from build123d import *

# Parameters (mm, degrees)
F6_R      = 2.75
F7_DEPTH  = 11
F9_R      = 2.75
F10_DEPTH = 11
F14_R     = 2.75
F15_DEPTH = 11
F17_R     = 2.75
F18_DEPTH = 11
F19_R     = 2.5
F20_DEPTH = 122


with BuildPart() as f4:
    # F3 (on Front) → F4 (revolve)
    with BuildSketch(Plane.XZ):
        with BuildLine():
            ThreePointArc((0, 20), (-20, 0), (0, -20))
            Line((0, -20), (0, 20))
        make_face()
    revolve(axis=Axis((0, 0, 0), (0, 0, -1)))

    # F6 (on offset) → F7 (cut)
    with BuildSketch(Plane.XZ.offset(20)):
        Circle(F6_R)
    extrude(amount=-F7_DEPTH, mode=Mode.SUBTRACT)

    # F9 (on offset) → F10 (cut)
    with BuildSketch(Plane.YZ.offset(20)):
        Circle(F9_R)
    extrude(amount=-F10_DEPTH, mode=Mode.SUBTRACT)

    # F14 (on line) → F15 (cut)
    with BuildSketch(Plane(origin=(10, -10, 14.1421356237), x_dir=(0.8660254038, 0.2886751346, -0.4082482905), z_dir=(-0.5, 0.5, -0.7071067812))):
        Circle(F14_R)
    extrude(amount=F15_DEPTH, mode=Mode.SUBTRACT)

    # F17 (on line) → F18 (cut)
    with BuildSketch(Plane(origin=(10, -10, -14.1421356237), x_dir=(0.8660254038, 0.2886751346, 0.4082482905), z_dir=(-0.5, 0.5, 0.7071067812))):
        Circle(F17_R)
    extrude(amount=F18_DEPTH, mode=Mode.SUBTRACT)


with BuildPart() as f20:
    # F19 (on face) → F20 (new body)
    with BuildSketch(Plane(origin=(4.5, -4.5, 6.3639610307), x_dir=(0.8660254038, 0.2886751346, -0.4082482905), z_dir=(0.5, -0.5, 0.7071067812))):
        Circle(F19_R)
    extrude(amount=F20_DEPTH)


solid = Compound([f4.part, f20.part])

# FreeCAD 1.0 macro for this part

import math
import FreeCAD as App
import Part
import Sketcher
from FreeCAD import Vector

doc = App.newDocument("Part")
body = doc.addObject("PartDesign::Body", "Body")

# Sketch on XZ plane
sketch1 = doc.addObject("Sketcher::SketchObject", "Sketch")
body.addObject(sketch1)
sketch1.AttachmentSupport = (doc.XZ_Plane, [""])
sketch1.MapMode = "FlatFace"
sketch1.addGeometry([
    Part.ArcOfCircle(Part.Circle(Vector(0, 0, 0), Vector(0, 0, 1), 20), math.radians(90), math.radians(270)),
    Part.LineSegment(Vector(0, -20, 0), Vector(0, 20, 0)),
], False)
sketch1.addConstraint([
    Sketcher.Constraint("Coincident", 0, 1, 1, 2),
    Sketcher.Constraint("Coincident", 1, 1, 0, 2),
    Sketcher.Constraint("Vertical", 1),
    Sketcher.Constraint("Coincident", 0, 3, -1, 1),
    Sketcher.Constraint("PointOnObject", 0, 1, -2),
    Sketcher.Constraint("Radius", 0, 20.0),
])
revolution = doc.addObject("PartDesign::Revolution", "Revolution")
body.addObject(revolution)
revolution.Profile = sketch1
revolution.ReferenceAxis = (sketch1, ["V_Axis"])
revolution.Angle = 360

# Sketch on XZ plane
sketch2 = doc.addObject("Sketcher::SketchObject", "Sketch001")
body.addObject(sketch2)
sketch2.AttachmentSupport = (doc.XZ_Plane, [""])
sketch2.MapMode = "FlatFace"
sketch2.AttachmentOffset = App.Placement(Vector(0, 0, 20), App.Rotation())
sketch2.addGeometry(Part.Circle(Vector(0, 0, 0), Vector(0, 0, 1), 2.8), False)
sketch2.addConstraint([
    Sketcher.Constraint("Coincident", 0, 3, -1, 1),
    Sketcher.Constraint("Diameter", 0, 5.5),
])
pocket1 = doc.addObject("PartDesign::Pocket", "Pocket")
body.addObject(pocket1)
pocket1.Profile = sketch2
pocket1.Length = 11

# Sketch on YZ plane
sketch3 = doc.addObject("Sketcher::SketchObject", "Sketch002")
body.addObject(sketch3)
sketch3.AttachmentSupport = (doc.YZ_Plane, [""])
sketch3.MapMode = "FlatFace"
sketch3.AttachmentOffset = App.Placement(Vector(0, 0, 20), App.Rotation())
sketch3.addGeometry(Part.Circle(Vector(0, 0, 0), Vector(0, 0, 1), 2.8), False)
sketch3.addConstraint([
    Sketcher.Constraint("Coincident", 0, 3, -1, 1),
    Sketcher.Constraint("Diameter", 0, 5.5),
])
pocket2 = doc.addObject("PartDesign::Pocket", "Pocket001")
body.addObject(pocket2)
pocket2.Profile = sketch3
pocket2.Length = 11

# Sketch on an angled plane
sketch4 = doc.addObject("Sketcher::SketchObject", "Sketch003")
body.addObject(sketch4)
sketch4.Placement = App.Placement(Vector(10, -10, 14.142136), App.Rotation(Vector(0.866025404, 0.288675135, -0.40824829), Vector(0, -0.816496581, -0.57735027), Vector(-0.5, 0.5, -0.707106781), "ZXY"))
sketch4.addGeometry(Part.Circle(Vector(0, 0, 0), Vector(0, 0, 1), 2.8), False)
sketch4.addConstraint([
    Sketcher.Constraint("Coincident", 0, 3, -1, 1),
    Sketcher.Constraint("Diameter", 0, 5.5),
])
pocket3 = doc.addObject("PartDesign::Pocket", "Pocket002")
body.addObject(pocket3)
pocket3.Profile = sketch4
pocket3.Length = 11
pocket3.Reversed = True

# Sketch on an angled plane
sketch5 = doc.addObject("Sketcher::SketchObject", "Sketch004")
body.addObject(sketch5)
sketch5.Placement = App.Placement(Vector(10, -10, -14.142136), App.Rotation(Vector(0.866025404, 0.288675135, 0.40824829), Vector(0, 0.816496581, -0.57735027), Vector(-0.5, 0.5, 0.707106781), "ZXY"))
sketch5.addGeometry(Part.Circle(Vector(0, 0, 0), Vector(0, 0, 1), 2.8), False)
sketch5.addConstraint([
    Sketcher.Constraint("Coincident", 0, 3, -1, 1),
    Sketcher.Constraint("Diameter", 0, 5.5),
])
pocket4 = doc.addObject("PartDesign::Pocket", "Pocket003")
body.addObject(pocket4)
pocket4.Profile = sketch5
pocket4.Length = 11
pocket4.Reversed = True
body2 = doc.addObject("PartDesign::Body", "Body001")

# Sketch on an angled plane
sketch6 = doc.addObject("Sketcher::SketchObject", "Sketch005")
body2.addObject(sketch6)
sketch6.Placement = App.Placement(Vector(4.5, -4.5, 6.363961), App.Rotation(Vector(0.866025404, 0.288675135, -0.40824829), Vector(0, 0.816496581, 0.57735027), Vector(0.5, -0.5, 0.707106781), "ZXY"))
sketch6.addGeometry(Part.Circle(Vector(0, 0, 0), Vector(0, 0, 1), 2.5), False)
sketch6.addConstraint([
    Sketcher.Constraint("Coincident", 0, 3, -1, 1),
    Sketcher.Constraint("Diameter", 0, 5.0),
])
pad1 = doc.addObject("PartDesign::Pad", "Pad")
body2.addObject(pad1)
pad1.Profile = sketch6
pad1.Length = 122

doc.recompute()
